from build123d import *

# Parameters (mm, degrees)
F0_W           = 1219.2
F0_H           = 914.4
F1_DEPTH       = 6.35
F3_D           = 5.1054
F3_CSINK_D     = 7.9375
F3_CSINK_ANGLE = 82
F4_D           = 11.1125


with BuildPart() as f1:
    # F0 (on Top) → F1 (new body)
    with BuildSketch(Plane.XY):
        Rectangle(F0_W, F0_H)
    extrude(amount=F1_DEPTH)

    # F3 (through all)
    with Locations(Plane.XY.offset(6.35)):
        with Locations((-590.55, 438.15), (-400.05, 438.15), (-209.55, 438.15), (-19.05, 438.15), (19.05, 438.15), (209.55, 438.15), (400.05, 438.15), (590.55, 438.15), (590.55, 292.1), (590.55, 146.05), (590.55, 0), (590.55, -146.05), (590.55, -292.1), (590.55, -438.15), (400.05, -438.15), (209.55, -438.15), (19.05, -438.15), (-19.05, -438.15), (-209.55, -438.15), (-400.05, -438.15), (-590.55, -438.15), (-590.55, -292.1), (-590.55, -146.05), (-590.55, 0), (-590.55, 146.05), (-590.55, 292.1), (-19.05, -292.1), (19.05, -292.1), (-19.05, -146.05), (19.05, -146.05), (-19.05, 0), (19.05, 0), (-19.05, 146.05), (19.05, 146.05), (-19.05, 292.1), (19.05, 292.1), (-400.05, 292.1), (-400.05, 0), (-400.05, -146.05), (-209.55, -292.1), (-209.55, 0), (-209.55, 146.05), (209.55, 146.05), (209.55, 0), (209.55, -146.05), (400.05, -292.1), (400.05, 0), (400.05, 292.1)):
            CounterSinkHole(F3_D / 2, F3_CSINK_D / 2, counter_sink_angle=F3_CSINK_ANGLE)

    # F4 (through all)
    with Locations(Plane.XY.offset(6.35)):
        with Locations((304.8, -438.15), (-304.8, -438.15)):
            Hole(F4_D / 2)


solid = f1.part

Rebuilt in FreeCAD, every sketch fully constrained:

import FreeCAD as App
import Part
import Sketcher
from FreeCAD import Vector
Q = App.Units.Quantity

doc = App.newDocument("Part")
body = doc.addObject("PartDesign::Body", "Body")

sketch1 = body.newObject("Sketcher::SketchObject", "Sketch")
sketch1.AttachmentSupport = (doc.getObject("XY_Plane"), [""])
sketch1.MapMode = "FlatFace"
sketch1.addGeometry([
    Part.LineSegment(Vector(-610, 457, 0), Vector(-610, -457, 0)),
    Part.LineSegment(Vector(-610, -457, 0), Vector(610, -457, 0)),
    Part.LineSegment(Vector(610, -457, 0), Vector(610, 457, 0)),
    Part.LineSegment(Vector(610, 457, 0), Vector(-610, 457, 0)),
], False)
sketch1.addConstraint([
    Sketcher.Constraint("Coincident", 0, 2, 1, 1),
    Sketcher.Constraint("Coincident", 1, 2, 2, 1),
    Sketcher.Constraint("Coincident", 2, 2, 3, 1),
    Sketcher.Constraint("Coincident", 3, 2, 0, 1),
    Sketcher.Constraint("Vertical", 0),
    Sketcher.Constraint("Horizontal", 1),
    Sketcher.Constraint("Vertical", 2),
    Sketcher.Constraint("Horizontal", 3),
    Sketcher.Constraint("Symmetric", 0, 2, 2, 2, -1, 1),
    Sketcher.Constraint("DistanceX", 1, 1, 1, 2, Q("48 in")),
    Sketcher.Constraint("DistanceY", 0, 2, 0, 1, Q("36 in")),
])
pad1 = body.newObject("PartDesign::Pad", "Pad")
pad1.Profile = sketch1
pad1.Length = Q("0.25 in")

sketch2 = body.newObject("Sketcher::SketchObject", "Sketch001")
sketch2.AttachmentSupport = (doc.getObject("XY_Plane"), [""])
sketch2.MapMode = "FlatFace"
sketch2.AttachmentOffset = App.Placement(Vector(0, 0, 0.25 * 25.4), App.Rotation())
sketch2.addGeometry([
    Part.Circle(Vector(-590.5, 438.1, 0), Vector(0, 0, 1), 2.6),
    Part.Circle(Vector(-400.1, 438.1, 0), Vector(0, 0, 1), 2.6),
    Part.Circle(Vector(-209.6, 438.1, 0), Vector(0, 0, 1), 2.6),
    Part.Circle(Vector(-19.1, 438.1, 0), Vector(0, 0, 1), 2.6),
    Part.Circle(Vector(19.1, 438.1, 0), Vector(0, 0, 1), 2.6),
    Part.Circle(Vector(209.6, 438.1, 0), Vector(0, 0, 1), 2.6),
    Part.Circle(Vector(400.1, 438.1, 0), Vector(0, 0, 1), 2.6),
    Part.Circle(Vector(590.5, 438.1, 0), Vector(0, 0, 1), 2.6),
    Part.Circle(Vector(590.5, 292.1, 0), Vector(0, 0, 1), 2.6),
    Part.Circle(Vector(590.5, 146.1, 0), Vector(0, 0, 1), 2.6),
    Part.Circle(Vector(590.5, 0, 0), Vector(0, 0, 1), 2.6),
    Part.Circle(Vector(590.5, -146.1, 0), Vector(0, 0, 1), 2.6),
    Part.Circle(Vector(590.5, -292.1, 0), Vector(0, 0, 1), 2.6),
    Part.Circle(Vector(590.5, -438.1, 0), Vector(0, 0, 1), 2.6),
    Part.Circle(Vector(400.1, -438.1, 0), Vector(0, 0, 1), 2.6),
    Part.Circle(Vector(209.6, -438.1, 0), Vector(0, 0, 1), 2.6),
    Part.Circle(Vector(19.1, -438.1, 0), Vector(0, 0, 1), 2.6),
    Part.Circle(Vector(-19.1, -438.1, 0), Vector(0, 0, 1), 2.6),
    Part.Circle(Vector(-209.6, -438.1, 0), Vector(0, 0, 1), 2.6),
    Part.Circle(Vector(-400.1, -438.1, 0), Vector(0, 0, 1), 2.6),
    Part.Circle(Vector(-590.5, -438.1, 0), Vector(0, 0, 1), 2.6),
    Part.Circle(Vector(-590.5, -292.1, 0), Vector(0, 0, 1), 2.6),
    Part.Circle(Vector(-590.5, -146.1, 0), Vector(0, 0, 1), 2.6),
    Part.Circle(Vector(-590.5, 0, 0), Vector(0, 0, 1), 2.6),
    Part.Circle(Vector(-590.5, 146.1, 0), Vector(0, 0, 1), 2.6),
    Part.Circle(Vector(-590.5, 292.1, 0), Vector(0, 0, 1), 2.6),
    Part.Circle(Vector(-19.1, -292.1, 0), Vector(0, 0, 1), 2.6),
    Part.Circle(Vector(19.1, -292.1, 0), Vector(0, 0, 1), 2.6),
    Part.Circle(Vector(-19.1, -146.1, 0), Vector(0, 0, 1), 2.6),
    Part.Circle(Vector(19.1, -146.1, 0), Vector(0, 0, 1), 2.6),
    Part.Circle(Vector(-19.1, 0, 0), Vector(0, 0, 1), 2.6),
    Part.Circle(Vector(19.1, 0, 0), Vector(0, 0, 1), 2.6),
    Part.Circle(Vector(-19.1, 146.1, 0), Vector(0, 0, 1), 2.6),
    Part.Circle(Vector(19.1, 146.1, 0), Vector(0, 0, 1), 2.6),
    Part.Circle(Vector(-19.1, 292.1, 0), Vector(0, 0, 1), 2.6),
    Part.Circle(Vector(19.1, 292.1, 0), Vector(0, 0, 1), 2.6),
    Part.Circle(Vector(-400.1, 292.1, 0), Vector(0, 0, 1), 2.6),
    Part.Circle(Vector(-400.1, 0, 0), Vector(0, 0, 1), 2.6),
    Part.Circle(Vector(-400.1, -146.1, 0), Vector(0, 0, 1), 2.6),
    Part.Circle(Vector(-209.6, -292.1, 0), Vector(0, 0, 1), 2.6),
    Part.Circle(Vector(-209.6, 0, 0), Vector(0, 0, 1), 2.6),
    Part.Circle(Vector(-209.6, 146.1, 0), Vector(0, 0, 1), 2.6),
    Part.Circle(Vector(209.6, 146.1, 0), Vector(0, 0, 1), 2.6),
    Part.Circle(Vector(209.6, 0, 0), Vector(0, 0, 1), 2.6),
    Part.Circle(Vector(209.6, -146.1, 0), Vector(0, 0, 1), 2.6),
    Part.Circle(Vector(400.1, -292.1, 0), Vector(0, 0, 1), 2.6),
    Part.Circle(Vector(400.1, 0, 0), Vector(0, 0, 1), 2.6),
    Part.Circle(Vector(400.1, 292.1, 0), Vector(0, 0, 1), 2.6),
], False)
sketch2.addConstraint([
    Sketcher.Constraint("Equal", 0, 1),
    Sketcher.Constraint("Equal", 1, 2),
    Sketcher.Constraint("Equal", 2, 3),
    Sketcher.Constraint("Equal", 3, 4),
    Sketcher.Constraint("Equal", 4, 5),
    Sketcher.Constraint("Equal", 5, 6),
    Sketcher.Constraint("Equal", 6, 7),
    Sketcher.Constraint("Equal", 7, 8),
    Sketcher.Constraint("Equal", 8, 9),
    Sketcher.Constraint("Equal", 9, 10),
    Sketcher.Constraint("Equal", 10, 11),
    Sketcher.Constraint("Equal", 11, 12),
    Sketcher.Constraint("Equal", 12, 13),
    Sketcher.Constraint("Equal", 13, 14),
    Sketcher.Constraint("Equal", 14, 15),
    Sketcher.Constraint("Equal", 15, 16),
    Sketcher.Constraint("Equal", 16, 17),
    Sketcher.Constraint("Equal", 17, 18),
    Sketcher.Constraint("Equal", 18, 19),
    Sketcher.Constraint("Equal", 19, 20),
    Sketcher.Constraint("Equal", 20, 21),
    Sketcher.Constraint("Equal", 21, 22),
    Sketcher.Constraint("Equal", 22, 23),
    Sketcher.Constraint("Equal", 23, 24),
    Sketcher.Constraint("Equal", 24, 25),
    Sketcher.Constraint("Equal", 25, 26),
    Sketcher.Constraint("Equal", 26, 27),
    Sketcher.Constraint("Equal", 27, 28),
    Sketcher.Constraint("Equal", 28, 29),
    Sketcher.Constraint("Equal", 29, 30),
    Sketcher.Constraint("Equal", 30, 31),
    Sketcher.Constraint("Equal", 31, 32),
    Sketcher.Constraint("Equal", 32, 33),
    Sketcher.Constraint("Equal", 33, 34),
    Sketcher.Constraint("Equal", 34, 35),
    Sketcher.Constraint("Equal", 35, 36),
    Sketcher.Constraint("Equal", 36, 37),
    Sketcher.Constraint("Equal", 37, 38),
    Sketcher.Constraint("Equal", 38, 39),
    Sketcher.Constraint("Equal", 39, 40),
    Sketcher.Constraint("Equal", 40, 41),
    Sketcher.Constraint("Equal", 41, 42),
    Sketcher.Constraint("Equal", 42, 43),
    Sketcher.Constraint("Equal", 43, 44),
    Sketcher.Constraint("Equal", 44, 45),
    Sketcher.Constraint("Equal", 45, 46),
    Sketcher.Constraint("Equal", 46, 47),
    Sketcher.Constraint("Symmetric", 0, 3, 13, 3, -1, 1),
    Sketcher.Constraint("Symmetric", 1, 3, 14, 3, -1, 1),
    Sketcher.Constraint("Symmetric", 2, 3, 15, 3, -1, 1),
    Sketcher.Constraint("Symmetric", 3, 3, 16, 3, -1, 1),
    Sketcher.Constraint("Symmetric", 4, 3, 17, 3, -1, 1),
    Sketcher.Constraint("Symmetric", 5, 3, 18, 3, -1, 1),
    Sketcher.Constraint("Symmetric", 6, 3, 19, 3, -1, 1),
    Sketcher.Constraint("Symmetric", 7, 3, 20, 3, -1, 1),
    Sketcher.Constraint("Symmetric", 8, 3, 21, 3, -1, 1),
    Sketcher.Constraint("Symmetric", 9, 3, 22, 3, -1, 1),
    Sketcher.Constraint("Symmetric", 10, 3, 23, 3, -1, 1),
    Sketcher.Constraint("Symmetric", 11, 3, 24, 3, -1, 1),
    Sketcher.Constraint("Symmetric", 12, 3, 25, 3, -1, 1),
    Sketcher.Constraint("Symmetric", 30, 3, 31, 3, -1, 1),
    Sketcher.Constraint("Symmetric", 29, 3, 32, 3, -1, 1),
    Sketcher.Constraint("Symmetric", 28, 3, 33, 3, -1, 1),
    Sketcher.Constraint("Symmetric", 27, 3, 34, 3, -1, 1),
    Sketcher.Constraint("Symmetric", 26, 3, 35, 3, -1, 1),
    Sketcher.Constraint("Symmetric", 40, 3, 43, 3, -1, 1),
    Sketcher.Constraint("Symmetric", 41, 3, 44, 3, -1, 1),
    Sketcher.Constraint("Symmetric", 36, 3, 45, 3, -1, 1),
    Sketcher.Constraint("Symmetric", 37, 3, 46, 3, -1, 1),
    Sketcher.Constraint("Symmetric", 3, 3, 4, 3, -2),
    Sketcher.Constraint("Symmetric", 2, 3, 5, 3, -2),
    Sketcher.Constraint("Symmetric", 1, 3, 6, 3, -2),
    Sketcher.Constraint("Symmetric", 0, 3, 7, 3, -2),
    Sketcher.Constraint("Symmetric", 12, 3, 21, 3, -2),
    Sketcher.Constraint("Symmetric", 11, 3, 22, 3, -2),
    Sketcher.Constraint("Symmetric", 26, 3, 27, 3, -2),
    Sketcher.Constraint("Symmetric", 28, 3, 29, 3, -2),
    Sketcher.Constraint("Symmetric", 41, 3, 42, 3, -2),
    Sketcher.Constraint("Symmetric", 36, 3, 47, 3, -2),
    Sketcher.Constraint("PointOnObject", 10, 3, -1),
    Sketcher.Constraint("PointOnObject", 30, 3, -1),
    Sketcher.Constraint("PointOnObject", 37, 3, -1),
    Sketcher.Constraint("PointOnObject", 40, 3, -1),
    Sketcher.Constraint("Horizontal", 0, 3, 1, 3),
    Sketcher.Constraint("Horizontal", 1, 3, 2, 3),
    Sketcher.Constraint("Horizontal", 2, 3, 3, 3),
    Sketcher.Constraint("Horizontal", 21, 3, 26, 3),
    Sketcher.Constraint("Horizontal", 22, 3, 28, 3),
    Sketcher.Constraint("Horizontal", 35, 3, 36, 3),
    Sketcher.Constraint("Horizontal", 29, 3, 38, 3),
    Sketcher.Constraint("Horizontal", 27, 3, 39, 3),
    Sketcher.Constraint("Horizontal", 33, 3, 41, 3),
    Sketcher.Constraint("Vertical", 7, 3, 8, 3),
    Sketcher.Constraint("Vertical", 8, 3, 9, 3),
    Sketcher.Constraint("Vertical", 9, 3, 10, 3),
    Sketcher.Constraint("Vertical", 17, 3, 26, 3),
    Sketcher.Constraint("Vertical", 26, 3, 28, 3),
    Sketcher.Constraint("Vertical", 28, 3, 30, 3),
    Sketcher.Constraint("Vertical", 19, 3, 36, 3),
    Sketcher.Constraint("Vertical", 36, 3, 37, 3),
    Sketcher.Constraint("Vertical", 37, 3, 38, 3),
    Sketcher.Constraint("Vertical", 18, 3, 39, 3),
    Sketcher.Constraint("Vertical", 39, 3, 40, 3),
    Sketcher.Constraint("Vertical", 40, 3, 41, 3),
    Sketcher.Constraint("Diameter", 0, Q("0.201 in")),
    Sketcher.Constraint("DistanceX", 0, 3, 2, 3, Q("15 in")),
    Sketcher.Constraint("DistanceX", 1, 3, 3, 3, Q("15 in")),
    Sketcher.Constraint("DistanceX", 2, 3, 4, 3, Q("9 in")),
    Sketcher.Constraint("DistanceY", 11, 3, 7, 3, Q("23 in")),
    Sketcher.Constraint("DistanceY", 12, 3, 8, 3, Q("23 in")),
    Sketcher.Constraint("DistanceX", 0, 3, 1, 3, Q("7.5 in")),
    Sketcher.Constraint("DistanceY", 9, 3, 7, 3, Q("11.5 in")),
])
doc.recompute()
hole = body.newObject("PartDesign::Hole", "Hole")
hole.Profile = sketch2
hole.ThreadType = "None"
hole.Diameter = Q("0.201 in")
hole.DepthType = "ThroughAll"
hole.HoleCutType = "Countersink"
hole.HoleCutDiameter = Q("0.3125 in")
hole.HoleCutCountersinkAngle = 82

sketch3 = body.newObject("Sketcher::SketchObject", "Sketch002")
sketch3.AttachmentSupport = (doc.getObject("XY_Plane"), [""])
sketch3.MapMode = "FlatFace"
sketch3.AttachmentOffset = App.Placement(Vector(0, 0, 0.25 * 25.4), App.Rotation())
sketch3.addGeometry([
    Part.Circle(Vector(305, -438, 0), Vector(0, 0, 1), 6),
    Part.Circle(Vector(-305, -438, 0), Vector(0, 0, 1), 6),
], False)
sketch3.addConstraint([
    Sketcher.Constraint("Equal", 0, 1),
    Sketcher.Constraint("Symmetric", 0, 3, 1, 3, -2),
    Sketcher.Constraint("Diameter", 0, Q("0.4375 in")),
    Sketcher.Constraint("DistanceX", -1, 1, 0, 3, Q("12 in")),
    Sketcher.Constraint("DistanceY", 0, 3, -1, 1, Q("17.25 in")),
])
doc.recompute()
hole2 = body.newObject("PartDesign::Hole", "Hole001")
hole2.Profile = sketch3
hole2.ThreadType = "None"
hole2.Diameter = Q("0.4375 in")
hole2.DepthType = "ThroughAll"

doc.recompute()
